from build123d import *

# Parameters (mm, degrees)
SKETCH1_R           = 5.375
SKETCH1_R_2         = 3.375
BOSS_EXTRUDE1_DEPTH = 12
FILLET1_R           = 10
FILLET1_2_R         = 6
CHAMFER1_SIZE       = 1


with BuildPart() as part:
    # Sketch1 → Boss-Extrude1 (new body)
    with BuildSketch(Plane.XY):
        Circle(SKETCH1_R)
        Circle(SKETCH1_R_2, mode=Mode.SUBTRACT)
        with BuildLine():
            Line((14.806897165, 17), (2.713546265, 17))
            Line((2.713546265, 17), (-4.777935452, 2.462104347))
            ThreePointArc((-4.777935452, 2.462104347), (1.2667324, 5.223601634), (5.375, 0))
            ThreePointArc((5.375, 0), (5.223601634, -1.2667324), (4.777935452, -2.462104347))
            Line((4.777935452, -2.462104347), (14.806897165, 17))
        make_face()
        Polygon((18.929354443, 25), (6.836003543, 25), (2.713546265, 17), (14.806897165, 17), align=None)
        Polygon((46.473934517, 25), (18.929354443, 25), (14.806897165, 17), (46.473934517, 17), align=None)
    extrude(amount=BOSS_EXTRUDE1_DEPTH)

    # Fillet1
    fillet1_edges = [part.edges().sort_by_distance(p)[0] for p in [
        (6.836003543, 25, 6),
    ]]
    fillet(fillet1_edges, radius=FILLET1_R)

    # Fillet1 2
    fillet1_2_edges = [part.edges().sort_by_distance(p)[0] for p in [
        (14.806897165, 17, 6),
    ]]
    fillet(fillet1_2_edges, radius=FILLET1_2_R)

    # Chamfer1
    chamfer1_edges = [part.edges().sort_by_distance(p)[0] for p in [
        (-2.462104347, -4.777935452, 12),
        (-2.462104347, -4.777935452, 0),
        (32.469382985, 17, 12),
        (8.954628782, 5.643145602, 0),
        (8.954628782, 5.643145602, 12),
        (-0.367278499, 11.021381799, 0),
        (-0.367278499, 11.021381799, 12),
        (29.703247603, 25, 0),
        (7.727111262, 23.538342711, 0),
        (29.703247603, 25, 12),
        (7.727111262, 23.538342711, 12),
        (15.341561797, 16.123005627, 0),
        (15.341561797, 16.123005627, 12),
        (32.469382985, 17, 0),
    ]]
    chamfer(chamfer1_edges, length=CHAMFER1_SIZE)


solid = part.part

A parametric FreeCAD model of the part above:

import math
import FreeCAD as App
import Part
import Sketcher
from FreeCAD import Vector


def edges_at(feature, points):
    """Names of the edges that pass closest to the given points."""
    edges = feature.Shape.Edges
    near = lambda p: min(range(len(edges)), key=lambda i: edges[i].distToShape(Part.Vertex(*p))[0])
    return sorted({f"Edge{near(p) + 1}" for p in points})

doc = App.newDocument("Part")
body = doc.addObject("PartDesign::Body", "Body")

# Sketch on XY plane
sketch1 = body.newObject("Sketcher::SketchObject", "Sketch")
sketch1.AttachmentSupport = (doc.getObject("XY_Plane"), [""])
sketch1.MapMode = "FlatFace"
sketch1.addGeometry([
    Part.ArcOfCircle(Part.Circle(Vector(0, 0, 0), Vector(0, 0, 1), 5.4), math.radians(153), math.radians(333)),  # 0
    Part.LineSegment(Vector(4.8, -2.5, 0), Vector(14.8, 17, 0)),  # 1
    Part.LineSegment(Vector(14.8, 17, 0), Vector(46.5, 17, 0)),  # 2
    Part.LineSegment(Vector(46.5, 17, 0), Vector(46.5, 25, 0)),  # 3
    Part.LineSegment(Vector(46.5, 25, 0), Vector(6.8, 25, 0)),  # 4
    Part.LineSegment(Vector(6.8, 25, 0), Vector(2.7, 17, 0)),  # 5
    Part.LineSegment(Vector(2.7, 17, 0), Vector(-4.8, 2.5, 0)),  # 6
    Part.Circle(Vector(0, 0, 0), Vector(0, 0, 1), 3.4),  # 7
], False)
sketch1.addConstraint([
    Sketcher.Constraint("Tangent", 0, 2, 1, 1),
    Sketcher.Constraint("Coincident", 1, 2, 2, 1),
    Sketcher.Constraint("Coincident", 2, 2, 3, 1),
    Sketcher.Constraint("Coincident", 3, 2, 4, 1),
    Sketcher.Constraint("Coincident", 4, 2, 5, 1),
    Sketcher.Constraint("Coincident", 5, 2, 6, 1),
    Sketcher.Constraint("Tangent", 6, 2, 0, 1),
    Sketcher.Constraint("Horizontal", 2),
    Sketcher.Constraint("Vertical", 3),
    Sketcher.Constraint("Horizontal", 4),
    Sketcher.Constraint("Coincident", 0, 3, -1, 1),
    Sketcher.Constraint("Coincident", 7, 3, -1, 1),
    Sketcher.Constraint("Parallel", 1, 5),
    Sketcher.Constraint("Parallel", 5, 6),
    Sketcher.Constraint("Horizontal", 2, 2, 5, 2),
    Sketcher.Constraint("Diameter", 7, 6.75),
    Sketcher.Constraint("DistanceY", 3, 1, 3, 2, 8.0),
    Sketcher.Constraint("DistanceY", -1, 1, 1, 2, 17.0),
    Sketcher.Constraint("Radius", 0, 5.375),
    Sketcher.Constraint("DistanceX", 0, 2, 2, 2, 41.695999),
    Sketcher.Constraint("DistanceX", 4, 2, 4, 1, 39.637931),
])
pad1 = body.newObject("PartDesign::Pad", "Pad")
pad1.Profile = sketch1
pad1.Length = 12
doc.recompute()

fillet = body.newObject("PartDesign::Fillet", "Fillet")
fillet.Base = (pad1, edges_at(pad1, [(6.836, 25, 6)]))
fillet.Radius = 10
doc.recompute()

fillet2 = body.newObject("PartDesign::Fillet", "Fillet001")
fillet2.Base = (fillet, edges_at(fillet, [(14.807, 17, 6)]))
fillet2.Radius = 6
doc.recompute()

chamfer = body.newObject("PartDesign::Chamfer", "Chamfer")
chamfer.Base = (fillet2, edges_at(fillet2, [
    (-2.462, -4.778, 12),
    (-2.462, -4.778, 0),
    (32.469, 17, 12),
    (8.955, 5.643, 0),
    (8.955, 5.643, 12),
    (-1.032, 9.731, 0),
    (-1.032, 9.731, 12),
    (29.703, 25, 0),
    (7.727, 23.538, 0),
    (29.703, 25, 12),
    (7.727, 23.538, 12),
    (15.342, 16.123, 0),
    (15.342, 16.123, 12),
    (32.469, 17, 0),
]))
chamfer.Size = 1

doc.recompute()
